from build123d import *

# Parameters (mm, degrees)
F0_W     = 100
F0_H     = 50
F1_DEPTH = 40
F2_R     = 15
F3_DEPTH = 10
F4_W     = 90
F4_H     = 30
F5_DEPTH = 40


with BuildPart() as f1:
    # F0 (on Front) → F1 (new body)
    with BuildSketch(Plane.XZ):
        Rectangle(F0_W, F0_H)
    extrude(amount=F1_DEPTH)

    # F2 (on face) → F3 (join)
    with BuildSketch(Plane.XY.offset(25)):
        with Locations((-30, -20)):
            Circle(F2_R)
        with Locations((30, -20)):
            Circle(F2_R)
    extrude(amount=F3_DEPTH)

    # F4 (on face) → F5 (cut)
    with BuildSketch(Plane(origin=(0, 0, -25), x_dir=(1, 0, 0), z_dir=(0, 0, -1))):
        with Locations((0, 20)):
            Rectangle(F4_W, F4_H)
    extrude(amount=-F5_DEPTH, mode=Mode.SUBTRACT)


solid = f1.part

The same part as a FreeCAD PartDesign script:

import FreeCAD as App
import Part
import Sketcher

V = App.Vector

doc = App.newDocument("Part")
body = doc.addObject("PartDesign::Body", "Body")

# Sketch on XZ plane
sketch1 = doc.addObject("Sketcher::SketchObject", "Sketch")
body.addObject(sketch1)
sketch1.AttachmentSupport = (doc.XZ_Plane, [""])
sketch1.MapMode = "FlatFace"
sketch1.addGeometry([
    Part.LineSegment(V(-50, 25, 0), V(-50, -25, 0)),
    Part.LineSegment(V(-50, -25, 0), V(50, -25, 0)),
    Part.LineSegment(V(50, -25, 0), V(50, 25, 0)),
    Part.LineSegment(V(50, 25, 0), V(-50, 25, 0)),
], False)
sketch1.addConstraint([
    Sketcher.Constraint("Coincident", 0, 2, 1, 1),
    Sketcher.Constraint("Coincident", 1, 2, 2, 1),
    Sketcher.Constraint("Coincident", 2, 2, 3, 1),
    Sketcher.Constraint("Coincident", 3, 2, 0, 1),
    Sketcher.Constraint("Vertical", 0),
    Sketcher.Constraint("Horizontal", 1),
    Sketcher.Constraint("Vertical", 2),
    Sketcher.Constraint("Horizontal", 3),
    Sketcher.Constraint("Symmetric", 0, 2, 2, 2, -1, 1),
    Sketcher.Constraint("DistanceX", 1, 1, 1, 2, 100.0),
    Sketcher.Constraint("DistanceY", 0, 2, 0, 1, 50.0),
])
pad1 = doc.addObject("PartDesign::Pad", "Pad")
body.addObject(pad1)
pad1.Profile = sketch1
pad1.Length = 40

# Sketch on XY plane
sketch2 = doc.addObject("Sketcher::SketchObject", "Sketch001")
body.addObject(sketch2)
sketch2.AttachmentSupport = (doc.XY_Plane, [""])
sketch2.MapMode = "FlatFace"
sketch2.AttachmentOffset = App.Placement(V(0, 0, 25), App.Rotation())
sketch2.addGeometry([
    Part.Circle(V(-30, -20, 0), V(0, 0, 1), 15),
    Part.Circle(V(30, -20, 0), V(0, 0, 1), 15),
], False)
sketch2.addConstraint([
    Sketcher.Constraint("Equal", 0, 1),
    Sketcher.Constraint("Symmetric", 0, 3, 1, 3, -2),
    Sketcher.Constraint("Diameter", 0, 30.0),
    Sketcher.Constraint("DistanceX", 0, 3, -1, 1, 30.0),
    Sketcher.Constraint("DistanceY", 0, 3, -1, 1, 20.0),
])
pad2 = doc.addObject("PartDesign::Pad", "Pad001")
body.addObject(pad2)
pad2.Profile = sketch2
pad2.Length = 10

# Sketch on XY plane
sketch3 = doc.addObject("Sketcher::SketchObject", "Sketch002")
body.addObject(sketch3)
sketch3.AttachmentSupport = (doc.XY_Plane, [""])
sketch3.MapMode = "FlatFace"
sketch3.AttachmentOffset = App.Placement(V(0, 0, -25), App.Rotation())
sketch3.addGeometry([
    Part.LineSegment(V(-45, -35, 0), V(-45, -5, 0)),
    Part.LineSegment(V(-45, -5, 0), V(45, -5, 0)),
    Part.LineSegment(V(45, -5, 0), V(45, -35, 0)),
    Part.LineSegment(V(45, -35, 0), V(-45, -35, 0)),
], False)
sketch3.addConstraint([
    Sketcher.Constraint("Coincident", 0, 2, 1, 1),
    Sketcher.Constraint("Coincident", 1, 2, 2, 1),
    Sketcher.Constraint("Coincident", 2, 2, 3, 1),
    Sketcher.Constraint("Coincident", 3, 2, 0, 1),
    Sketcher.Constraint("Vertical", 0),
    Sketcher.Constraint("Horizontal", 1),
    Sketcher.Constraint("Vertical", 2),
    Sketcher.Constraint("Horizontal", 3),
    Sketcher.Constraint("DistanceX", 1, 1, 1, 2, 90.0),
    Sketcher.Constraint("DistanceY", 0, 1, 0, 2, 30.0),
    Sketcher.Constraint("DistanceX", 0, 2, -1, 1, 45.0),
    Sketcher.Constraint("DistanceY", 0, 2, -1, 1, 5.0),
])
pocket1 = doc.addObject("PartDesign::Pocket", "Pocket")
body.addObject(pocket1)
pocket1.Profile = sketch3
pocket1.Length = 40
pocket1.Reversed = True

doc.recompute()
